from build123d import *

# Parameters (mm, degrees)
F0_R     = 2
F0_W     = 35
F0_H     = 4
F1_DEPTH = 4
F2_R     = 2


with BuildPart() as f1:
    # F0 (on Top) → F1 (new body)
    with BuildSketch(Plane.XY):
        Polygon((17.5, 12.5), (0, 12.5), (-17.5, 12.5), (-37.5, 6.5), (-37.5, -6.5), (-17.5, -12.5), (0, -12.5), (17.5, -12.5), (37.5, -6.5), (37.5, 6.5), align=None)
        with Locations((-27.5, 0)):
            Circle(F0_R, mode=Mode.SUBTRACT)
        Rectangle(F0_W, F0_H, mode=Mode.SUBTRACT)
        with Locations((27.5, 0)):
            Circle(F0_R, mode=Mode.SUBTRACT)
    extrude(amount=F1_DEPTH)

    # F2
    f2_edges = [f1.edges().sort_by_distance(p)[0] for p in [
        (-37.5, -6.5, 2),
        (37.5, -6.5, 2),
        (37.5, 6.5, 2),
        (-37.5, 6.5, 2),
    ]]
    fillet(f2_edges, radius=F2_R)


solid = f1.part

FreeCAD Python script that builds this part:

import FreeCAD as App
import Part
import Sketcher


def edges_at(feature, points):
    """Names of the edges that pass closest to the given points."""
    edges = feature.Shape.Edges
    near = lambda p: min(range(len(edges)), key=lambda i: edges[i].distToShape(Part.Vertex(*p))[0])
    return sorted({f"Edge{near(p) + 1}" for p in points})

doc = App.newDocument("Part")
body = doc.addObject("PartDesign::Body", "Body")

# Sketch on XY plane
sketch1 = body.newObject("Sketcher::SketchObject", "Sketch")
sketch1.AttachmentSupport = (doc.getObject("XY_Plane"), [""])
sketch1.MapMode = "FlatFace"
sketch1.addGeometry([
    Part.LineSegment(App.Vector(17.5, 12.5, 0), App.Vector(-17.5, 12.5, 0)),  # 0
    Part.LineSegment(App.Vector(-17.5, 12.5, 0), App.Vector(-37.5, 6.5, 0)),  # 1
    Part.LineSegment(App.Vector(-37.5, 6.5, 0), App.Vector(-37.5, -6.5, 0)),  # 2
    Part.LineSegment(App.Vector(-37.5, -6.5, 0), App.Vector(-17.5, -12.5, 0)),  # 3
    Part.LineSegment(App.Vector(-17.5, -12.5, 0), App.Vector(17.5, -12.5, 0)),  # 4
    Part.LineSegment(App.Vector(17.5, -12.5, 0), App.Vector(37.5, -6.5, 0)),  # 5
    Part.LineSegment(App.Vector(37.5, -6.5, 0), App.Vector(37.5, 6.5, 0)),  # 6
    Part.LineSegment(App.Vector(37.5, 6.5, 0), App.Vector(17.5, 12.5, 0)),  # 7
    Part.Circle(App.Vector(-27.5, 0, 0), App.Vector(0, 0, 1), 2),  # 8
    Part.LineSegment(App.Vector(17.5, -2, 0), App.Vector(-17.5, -2, 0)),  # 9
    Part.LineSegment(App.Vector(-17.5, -2, 0), App.Vector(-17.5, 2, 0)),  # 10
    Part.LineSegment(App.Vector(-17.5, 2, 0), App.Vector(17.5, 2, 0)),  # 11
    Part.LineSegment(App.Vector(17.5, 2, 0), App.Vector(17.5, -2, 0)),  # 12
    Part.Circle(App.Vector(27.5, 0, 0), App.Vector(0, 0, 1), 2),  # 13
], False)
sketch1.addConstraint([
    Sketcher.Constraint("Coincident", 0, 2, 1, 1),
    Sketcher.Constraint("Coincident", 1, 2, 2, 1),
    Sketcher.Constraint("Coincident", 2, 2, 3, 1),
    Sketcher.Constraint("Coincident", 3, 2, 4, 1),
    Sketcher.Constraint("Coincident", 4, 2, 5, 1),
    Sketcher.Constraint("Coincident", 5, 2, 6, 1),
    Sketcher.Constraint("Coincident", 6, 2, 7, 1),
    Sketcher.Constraint("Coincident", 7, 2, 0, 1),
    Sketcher.Constraint("Coincident", 9, 2, 10, 1),
    Sketcher.Constraint("Coincident", 10, 2, 11, 1),
    Sketcher.Constraint("Coincident", 11, 2, 12, 1),
    Sketcher.Constraint("Coincident", 12, 2, 9, 1),
    Sketcher.Constraint("Horizontal", 0),
    Sketcher.Constraint("Vertical", 2),
    Sketcher.Constraint("Horizontal", 4),
    Sketcher.Constraint("Vertical", 6),
    Sketcher.Constraint("Horizontal", 9),
    Sketcher.Constraint("Vertical", 10),
    Sketcher.Constraint("Horizontal", 11),
    Sketcher.Constraint("Vertical", 12),
    Sketcher.Constraint("Equal", 8, 13),
    Sketcher.Constraint("Symmetric", 8, 3, 13, 3, -1, 1),
    Sketcher.Constraint("Symmetric", 0, 2, 4, 2, -1, 1),
    Sketcher.Constraint("Symmetric", 1, 2, 5, 2, -1, 1),
    Sketcher.Constraint("Symmetric", 9, 2, 11, 2, -1, 1),
    Sketcher.Constraint("PointOnObject", 8, 3, -1),
    Sketcher.Constraint("Parallel", 3, 7),
    Sketcher.Constraint("Horizontal", 2, 2, 5, 2),
    Sketcher.Constraint("Horizontal", 1, 2, 6, 2),
    Sketcher.Constraint("Vertical", 0, 2, 3, 2),
    Sketcher.Constraint("Vertical", 3, 2, 9, 2),
    Sketcher.Constraint("Diameter", 8, 4.0),
    Sketcher.Constraint("DistanceX", 0, 2, 0, 1, 35.0),
    Sketcher.Constraint("DistanceY", 2, 2, 2, 1, 13.0),
    Sketcher.Constraint("DistanceY", 10, 1, 10, 2, 4.0),
    Sketcher.Constraint("DistanceX", 8, 3, 13, 3, 55.0),
    Sketcher.Constraint("DistanceX", 1, 2, 8, 3, 10.0),
    Sketcher.Constraint("DistanceY", 1, 2, 0, 2, 6.0),
])
pad1 = body.newObject("PartDesign::Pad", "Pad")
pad1.Profile = sketch1
pad1.Length = 4
doc.recompute()

fillet = body.newObject("PartDesign::Fillet", "Fillet")
fillet.Base = (pad1, edges_at(pad1, [
    (-37.5, -6.5, 2),
    (37.5, -6.5, 2),
    (37.5, 6.5, 2),
    (-37.5, 6.5, 2),
]))
fillet.Radius = 2

doc.recompute()
